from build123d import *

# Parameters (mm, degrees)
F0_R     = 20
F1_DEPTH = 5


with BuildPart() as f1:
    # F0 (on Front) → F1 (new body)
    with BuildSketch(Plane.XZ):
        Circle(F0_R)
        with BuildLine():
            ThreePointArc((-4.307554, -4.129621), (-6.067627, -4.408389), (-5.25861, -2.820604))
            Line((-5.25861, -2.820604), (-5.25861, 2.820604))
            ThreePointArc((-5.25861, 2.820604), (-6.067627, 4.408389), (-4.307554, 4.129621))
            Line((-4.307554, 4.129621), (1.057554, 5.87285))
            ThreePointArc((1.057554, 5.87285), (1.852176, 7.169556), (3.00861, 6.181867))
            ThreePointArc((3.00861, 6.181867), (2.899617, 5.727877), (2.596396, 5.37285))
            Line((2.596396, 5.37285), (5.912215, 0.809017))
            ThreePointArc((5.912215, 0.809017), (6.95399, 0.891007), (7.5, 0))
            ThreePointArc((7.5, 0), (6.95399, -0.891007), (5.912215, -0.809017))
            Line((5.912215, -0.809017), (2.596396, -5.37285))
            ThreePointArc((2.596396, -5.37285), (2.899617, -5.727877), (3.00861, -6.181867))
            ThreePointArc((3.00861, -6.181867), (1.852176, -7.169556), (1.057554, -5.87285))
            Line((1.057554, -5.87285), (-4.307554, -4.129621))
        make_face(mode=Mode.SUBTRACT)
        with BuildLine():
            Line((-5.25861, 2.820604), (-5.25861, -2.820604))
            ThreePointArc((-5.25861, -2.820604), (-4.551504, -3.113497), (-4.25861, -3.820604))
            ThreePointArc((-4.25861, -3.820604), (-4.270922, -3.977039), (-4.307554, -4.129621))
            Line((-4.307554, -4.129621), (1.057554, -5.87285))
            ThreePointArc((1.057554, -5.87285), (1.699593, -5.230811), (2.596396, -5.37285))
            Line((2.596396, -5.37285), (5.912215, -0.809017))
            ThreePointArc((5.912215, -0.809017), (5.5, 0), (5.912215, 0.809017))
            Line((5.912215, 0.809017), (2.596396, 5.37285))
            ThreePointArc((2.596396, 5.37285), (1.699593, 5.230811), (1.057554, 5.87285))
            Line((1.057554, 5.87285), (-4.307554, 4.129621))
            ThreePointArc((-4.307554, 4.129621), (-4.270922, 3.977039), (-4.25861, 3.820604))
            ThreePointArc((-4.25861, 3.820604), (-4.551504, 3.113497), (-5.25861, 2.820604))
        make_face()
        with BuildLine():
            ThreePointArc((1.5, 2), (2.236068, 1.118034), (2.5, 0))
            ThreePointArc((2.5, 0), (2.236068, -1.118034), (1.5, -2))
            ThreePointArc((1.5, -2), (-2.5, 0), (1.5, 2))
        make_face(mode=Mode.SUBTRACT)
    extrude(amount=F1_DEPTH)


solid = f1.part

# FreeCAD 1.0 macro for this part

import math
import FreeCAD as App
import Part
import Sketcher
from FreeCAD import Vector
Q = App.Units.Quantity

doc = App.newDocument("Part")
body = doc.addObject("PartDesign::Body", "Body")

sketch1 = doc.addObject("Sketcher::SketchObject", "Sketch")
body.addObject(sketch1)
sketch1.AttachmentSupport = (doc.XZ_Plane, [""])
sketch1.MapMode = "FlatFace"
sketch1.addGeometry(Part.Circle(Vector(0, 0, 0), Vector(0, 0, 1), 20), False)
sketch1.addGeometry(Part.ArcOfCircle(Part.Circle(Vector(-5.26, -3.82, 0), Vector(0, 0, 1), 1), math.radians(90), math.radians(342)), False)
sketch1.addGeometry(Part.ArcOfCircle(Part.Circle(Vector(-5.26, -3.82, 0), Vector(0, 0, 1), 1), math.radians(0), math.radians(90)), False)
sketch1.addGeometry(Part.ArcOfCircle(Part.Circle(Vector(-5.26, -3.82, 0), Vector(0, 0, 1), 1), math.radians(-18), math.radians(0)), False)
sketch1.addGeometry(Part.ArcOfCircle(Part.Circle(Vector(2.01, -6.18, 0), Vector(0, 0, 1), 1), math.radians(162), math.radians(360)), False)
sketch1.addGeometry(Part.ArcOfCircle(Part.Circle(Vector(2.01, -6.18, 0), Vector(0, 0, 1), 1), math.radians(54), math.radians(162)), False)
sketch1.addGeometry(Part.ArcOfCircle(Part.Circle(Vector(2.01, -6.18, 0), Vector(0, 0, 1), 1), math.radians(0), math.radians(54)), False)
sketch1.addGeometry(Part.ArcOfCircle(Part.Circle(Vector(6.5, 0, 0), Vector(0, 0, 1), 1), math.radians(-126), math.radians(0)), False)
sketch1.addGeometry(Part.ArcOfCircle(Part.Circle(Vector(6.5, 0, 0), Vector(0, 0, 1), 1), math.radians(126), math.radians(234)), False)
sketch1.addGeometry(Part.ArcOfCircle(Part.Circle(Vector(6.5, 0, 0), Vector(0, 0, 1), 1), math.radians(0), math.radians(126)), False)
sketch1.addGeometry(Part.ArcOfCircle(Part.Circle(Vector(0, 0, 0), Vector(0, 0, 1), 2.5), math.radians(53), math.radians(307)), False)
sketch1.addGeometry(Part.ArcOfCircle(Part.Circle(Vector(0, 0, 0), Vector(0, 0, 1), 2.5), math.radians(0), math.radians(53)), False)
sketch1.addGeometry(Part.ArcOfCircle(Part.Circle(Vector(0, 0, 0), Vector(0, 0, 1), 2.5), math.radians(-53), math.radians(0)), False)
sketch1.addGeometry(Part.ArcOfCircle(Part.Circle(Vector(-5.26, 3.82, 0), Vector(0, 0, 1), 1), math.radians(18), math.radians(270)), False)
sketch1.addGeometry(Part.ArcOfCircle(Part.Circle(Vector(-5.26, 3.82, 0), Vector(0, 0, 1), 1), math.radians(0), math.radians(18)), False)
sketch1.addGeometry(Part.ArcOfCircle(Part.Circle(Vector(-5.26, 3.82, 0), Vector(0, 0, 1), 1), math.radians(-90), math.radians(0)), False)
sketch1.addGeometry(Part.ArcOfCircle(Part.Circle(Vector(2.01, 6.18, 0), Vector(0, 0, 1), 1), math.radians(-54), math.radians(0)), False)
sketch1.addGeometry(Part.ArcOfCircle(Part.Circle(Vector(2.01, 6.18, 0), Vector(0, 0, 1), 1), math.radians(-162), math.radians(-54)), False)
sketch1.addGeometry(Part.ArcOfCircle(Part.Circle(Vector(2.01, 6.18, 0), Vector(0, 0, 1), 1), math.radians(0), math.radians(198)), False)
sketch1.addConstraint(Sketcher.Constraint("Tangent", 1, 1, 2, 2))
sketch1.addConstraint(Sketcher.Constraint("Coincident", 2, 1, 3, 2))
sketch1.addConstraint(Sketcher.Constraint("Tangent", 3, 1, 1, 2))
sketch1.addConstraint(Sketcher.Constraint("Tangent", 4, 1, 5, 2))
sketch1.addConstraint(Sketcher.Constraint("Tangent", 5, 1, 6, 2))
sketch1.addConstraint(Sketcher.Constraint("Tangent", 6, 1, 4, 2))
sketch1.addConstraint(Sketcher.Constraint("Tangent", 7, 1, 8, 2))
sketch1.addConstraint(Sketcher.Constraint("Tangent", 8, 1, 9, 2))
sketch1.addConstraint(Sketcher.Constraint("Tangent", 9, 1, 7, 2))
sketch1.addConstraint(Sketcher.Constraint("Tangent", 10, 1, 11, 2))
sketch1.addConstraint(Sketcher.Constraint("Tangent", 11, 1, 12, 2))
sketch1.addConstraint(Sketcher.Constraint("Tangent", 12, 1, 10, 2))
sketch1.addConstraint(Sketcher.Constraint("Tangent", 13, 1, 14, 2))
sketch1.addConstraint(Sketcher.Constraint("Coincident", 14, 1, 15, 2))
sketch1.addConstraint(Sketcher.Constraint("Tangent", 15, 1, 13, 2))
sketch1.addConstraint(Sketcher.Constraint("Tangent", 16, 1, 17, 2))
sketch1.addConstraint(Sketcher.Constraint("Tangent", 17, 1, 18, 2))
sketch1.addConstraint(Sketcher.Constraint("Tangent", 18, 1, 16, 2))
sketch1.addConstraint(Sketcher.Constraint("Coincident", 0, 3, -1, 1))
sketch1.addConstraint(Sketcher.Constraint("Coincident", 10, 3, -1, 1))
sketch1.addConstraint(Sketcher.Constraint("Equal", 1, 2))
sketch1.addConstraint(Sketcher.Constraint("Equal", 3, 4))
sketch1.addConstraint(Sketcher.Constraint("Equal", 6, 7))
sketch1.addConstraint(Sketcher.Constraint("Equal", 9, 13))
sketch1.addConstraint(Sketcher.Constraint("Equal", 13, 14))
sketch1.addConstraint(Sketcher.Constraint("Equal", 15, 16))
sketch1.addConstraint(Sketcher.Constraint("Symmetric", 1, 3, 13, 3, -1))
sketch1.addConstraint(Sketcher.Constraint("Symmetric", 4, 3, 16, 3, -1))
sketch1.addConstraint(Sketcher.Constraint("Symmetric", 7, 1, 8, 1, -1))
sketch1.addConstraint(Sketcher.Constraint("PointOnObject", 9, 1, -1))
sketch1.addConstraint(Sketcher.Constraint("PointOnObject", 11, 1, -1))
sketch1.addConstraint(Sketcher.Constraint("Horizontal", 3, 3, 2, 1))
sketch1.addConstraint(Sketcher.Constraint("Horizontal", 5, 3, 6, 1))
sketch1.addConstraint(Sketcher.Constraint("Horizontal", 15, 3, 14, 1))
sketch1.addConstraint(Sketcher.Constraint("Horizontal", 17, 3, 18, 1))
sketch1.addConstraint(Sketcher.Constraint("Vertical", 15, 3, 1, 1))
sketch1.addConstraint(Sketcher.Constraint("Vertical", 10, 1, 12, 1))
sketch1.addConstraint(Sketcher.Constraint("Vertical", 3, 1, 13, 1))
sketch1.addConstraint(Sketcher.Constraint("Vertical", 1, 1, 15, 1))
sketch1.addConstraint(Sketcher.Constraint("Vertical", 5, 1, 16, 1))
sketch1.addConstraint(Sketcher.Constraint("Vertical", 4, 1, 17, 1))
sketch1.addConstraint(Sketcher.Constraint("Diameter", 0, Q("40 mm")))
sketch1.addConstraint(Sketcher.Constraint("Radius", 1, Q("1 mm")))
sketch1.addConstraint(Sketcher.Constraint("Radius", 10, Q("2.5 mm")))
sketch1.addConstraint(Sketcher.Constraint("DistanceY", -1, 1, 10, 1, Q("2 mm")))
sketch1.addConstraint(Sketcher.Constraint("DistanceX", -1, 1, 7, 3, Q("6.5 mm")))
sketch1.addConstraint(Sketcher.Constraint("DistanceY", 4, 1, 5, 1, Q("0.5 mm")))
sketch1.addConstraint(Sketcher.Constraint("DistanceY", 3, 3, 7, 3, Q("3.820602 mm")))
sketch1.addConstraint(Sketcher.Constraint("DistanceX", 1, 3, -1, 1, Q("5.25861 mm")))
sketch1.addConstraint(Sketcher.Constraint("DistanceX", -1, 1, 4, 3, Q("2.00861 mm")))
sketch1.addConstraint(Sketcher.Constraint("DistanceY", 3, 1, -1, 1, Q("4.129621 mm")))
sketch1.addConstraint(Sketcher.Constraint("DistanceY", 4, 1, -1, 1, Q("5.87285 mm")))
sketch1.addConstraint(Sketcher.Constraint("DistanceY", 6, 3, 2, 3, Q("2.361262 mm")))
sketch1.addConstraint(Sketcher.Constraint("DistanceX", 5, 1, 7, 1, Q("3.315819 mm")))
pad1 = doc.addObject("PartDesign::Pad", "Pad")
body.addObject(pad1)
pad1.Profile = sketch1
pad1.Length = 5

doc.recompute()
